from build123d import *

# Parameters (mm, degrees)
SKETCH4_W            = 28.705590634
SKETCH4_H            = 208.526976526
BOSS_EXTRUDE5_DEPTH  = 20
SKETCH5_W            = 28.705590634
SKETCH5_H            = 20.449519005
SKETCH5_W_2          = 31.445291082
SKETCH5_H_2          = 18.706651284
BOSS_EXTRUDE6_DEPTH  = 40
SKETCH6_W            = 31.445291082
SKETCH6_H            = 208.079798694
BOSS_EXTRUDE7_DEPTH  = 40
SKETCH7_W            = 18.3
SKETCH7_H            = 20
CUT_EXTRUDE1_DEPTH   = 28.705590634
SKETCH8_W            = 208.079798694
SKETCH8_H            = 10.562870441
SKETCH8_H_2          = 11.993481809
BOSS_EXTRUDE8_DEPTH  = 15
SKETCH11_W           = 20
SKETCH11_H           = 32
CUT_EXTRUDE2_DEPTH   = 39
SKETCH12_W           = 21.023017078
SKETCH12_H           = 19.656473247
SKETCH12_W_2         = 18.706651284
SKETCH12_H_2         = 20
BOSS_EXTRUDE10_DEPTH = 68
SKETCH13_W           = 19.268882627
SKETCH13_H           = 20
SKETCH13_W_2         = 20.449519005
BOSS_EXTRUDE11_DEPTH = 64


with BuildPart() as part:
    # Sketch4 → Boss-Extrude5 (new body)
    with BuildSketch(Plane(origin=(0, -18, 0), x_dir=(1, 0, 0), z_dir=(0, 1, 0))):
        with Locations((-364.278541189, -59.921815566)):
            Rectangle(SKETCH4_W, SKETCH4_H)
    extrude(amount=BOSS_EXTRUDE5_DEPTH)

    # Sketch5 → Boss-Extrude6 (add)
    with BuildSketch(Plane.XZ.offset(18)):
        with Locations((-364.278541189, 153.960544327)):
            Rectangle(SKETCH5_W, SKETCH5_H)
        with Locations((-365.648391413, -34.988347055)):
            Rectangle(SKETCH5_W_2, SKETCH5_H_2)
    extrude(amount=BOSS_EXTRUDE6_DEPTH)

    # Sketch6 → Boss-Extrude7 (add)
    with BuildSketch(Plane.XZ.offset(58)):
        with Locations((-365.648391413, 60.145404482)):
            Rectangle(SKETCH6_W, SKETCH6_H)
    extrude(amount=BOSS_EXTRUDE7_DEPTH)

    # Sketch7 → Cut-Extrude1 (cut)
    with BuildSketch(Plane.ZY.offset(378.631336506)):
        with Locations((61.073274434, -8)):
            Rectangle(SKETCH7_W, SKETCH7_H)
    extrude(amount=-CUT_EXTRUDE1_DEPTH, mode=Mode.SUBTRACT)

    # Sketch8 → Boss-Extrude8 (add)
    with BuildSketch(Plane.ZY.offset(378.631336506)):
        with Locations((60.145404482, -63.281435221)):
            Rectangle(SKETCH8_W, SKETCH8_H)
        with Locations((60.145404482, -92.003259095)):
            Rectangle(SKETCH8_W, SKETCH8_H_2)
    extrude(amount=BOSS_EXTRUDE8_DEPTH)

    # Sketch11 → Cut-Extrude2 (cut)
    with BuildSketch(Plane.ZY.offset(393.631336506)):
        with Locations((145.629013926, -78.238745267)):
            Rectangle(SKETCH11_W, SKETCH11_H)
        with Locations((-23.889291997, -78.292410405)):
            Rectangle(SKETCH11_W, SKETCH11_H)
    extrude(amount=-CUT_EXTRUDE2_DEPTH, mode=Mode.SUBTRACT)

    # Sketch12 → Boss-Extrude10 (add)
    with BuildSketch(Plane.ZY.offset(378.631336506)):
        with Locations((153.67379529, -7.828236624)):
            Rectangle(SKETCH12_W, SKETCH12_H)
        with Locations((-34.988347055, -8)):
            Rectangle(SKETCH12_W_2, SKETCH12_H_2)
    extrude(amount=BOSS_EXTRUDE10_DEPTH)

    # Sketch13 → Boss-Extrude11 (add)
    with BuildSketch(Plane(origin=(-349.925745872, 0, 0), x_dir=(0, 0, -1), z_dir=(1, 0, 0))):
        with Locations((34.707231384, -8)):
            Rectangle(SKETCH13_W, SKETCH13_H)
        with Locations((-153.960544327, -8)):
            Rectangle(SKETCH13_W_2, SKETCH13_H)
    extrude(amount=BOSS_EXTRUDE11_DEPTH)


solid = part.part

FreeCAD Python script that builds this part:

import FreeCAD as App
import Part
import Sketcher

V = App.Vector


def add_polygon(sketch, points):
    """Adds a closed chain of lines whose ends are joined by coincident constraints."""
    first, n = sketch.GeometryCount, len(points)
    for a, b in zip(points, points[1:] + points[:1]):
        sketch.addGeometry(Part.LineSegment(App.Vector(*a, 0), App.Vector(*b, 0)), False)
    for i in range(n):
        sketch.addConstraint(Sketcher.Constraint("Coincident", first + i, 2, first + (i + 1) % n, 1))

doc = App.newDocument("Part")
body = doc.addObject("PartDesign::Body", "Body")

sketch1 = body.newObject("Sketcher::SketchObject", "Sketch")
sketch1.AttachmentSupport = (doc.getObject("XZ_Plane"), [""])
sketch1.MapMode = "FlatFace"
sketch1.AttachmentOffset = App.Placement(V(0, 0, 18), App.Rotation())
add_polygon(sketch1, [(-379, -44), (-379, 164), (-350, 164), (-350, -44)])
sketch1.addConstraint(Sketcher.Constraint("Vertical", 0))
sketch1.addConstraint(Sketcher.Constraint("Horizontal", 1))
sketch1.addConstraint(Sketcher.Constraint("Vertical", 2))
sketch1.addConstraint(Sketcher.Constraint("Horizontal", 3))
sketch1.addConstraint(Sketcher.Constraint("DistanceX", 1, 1, 1, 2, 28.705591))
sketch1.addConstraint(Sketcher.Constraint("DistanceY", 0, 1, 0, 2, 208.526977))
sketch1.addConstraint(Sketcher.Constraint("DistanceX", 0, 2, -1, 1, 378.631337))
sketch1.addConstraint(Sketcher.Constraint("DistanceY", -1, 1, 0, 2, 164.185304))
pad1 = body.newObject("PartDesign::Pad", "Pad")
pad1.Profile = sketch1
pad1.Length = 20
pad1.Reversed = True

sketch2 = body.newObject("Sketcher::SketchObject", "Sketch001")
sketch2.AttachmentSupport = (doc.getObject("XZ_Plane"), [""])
sketch2.MapMode = "FlatFace"
sketch2.AttachmentOffset = App.Placement(V(0, 0, 18), App.Rotation())
add_polygon(sketch2, [(-379, 164), (-379, 144), (-350, 144), (-350, 164)])
add_polygon(sketch2, [(-381, -26), (-381, -44), (-350, -44), (-350, -26)])
sketch2.addConstraint(Sketcher.Constraint("Vertical", 0))
sketch2.addConstraint(Sketcher.Constraint("Horizontal", 1))
sketch2.addConstraint(Sketcher.Constraint("Vertical", 2))
sketch2.addConstraint(Sketcher.Constraint("Horizontal", 3))
sketch2.addConstraint(Sketcher.Constraint("Vertical", 4))
sketch2.addConstraint(Sketcher.Constraint("Horizontal", 5))
sketch2.addConstraint(Sketcher.Constraint("Vertical", 6))
sketch2.addConstraint(Sketcher.Constraint("Horizontal", 7))
sketch2.addConstraint(Sketcher.Constraint("Vertical", 2, 2, 5, 2))
sketch2.addConstraint(Sketcher.Constraint("DistanceX", 1, 1, 1, 2, 28.705591))
sketch2.addConstraint(Sketcher.Constraint("DistanceX", 5, 1, 5, 2, 31.445291))
sketch2.addConstraint(Sketcher.Constraint("DistanceY", 0, 2, 0, 1, 20.449519))
sketch2.addConstraint(Sketcher.Constraint("DistanceY", 4, 2, 4, 1, 18.706651))
sketch2.addConstraint(Sketcher.Constraint("DistanceY", 6, 2, -1, 1, 25.635021))
sketch2.addConstraint(Sketcher.Constraint("DistanceX", 0, 2, -1, 1, 378.631337))
sketch2.addConstraint(Sketcher.Constraint("DistanceY", -1, 1, 0, 2, 143.735785))
pad2 = body.newObject("PartDesign::Pad", "Pad001")
pad2.Profile = sketch2
pad2.Length = 40

sketch3 = body.newObject("Sketcher::SketchObject", "Sketch002")
sketch3.AttachmentSupport = (doc.getObject("XZ_Plane"), [""])
sketch3.MapMode = "FlatFace"
sketch3.AttachmentOffset = App.Placement(V(0, 0, 58), App.Rotation())
add_polygon(sketch3, [(-381, 164), (-381, -44), (-350, -44), (-350, 164)])
sketch3.addConstraint(Sketcher.Constraint("Vertical", 0))
sketch3.addConstraint(Sketcher.Constraint("Horizontal", 1))
sketch3.addConstraint(Sketcher.Constraint("Vertical", 2))
sketch3.addConstraint(Sketcher.Constraint("Horizontal", 3))
sketch3.addConstraint(Sketcher.Constraint("DistanceY", 0, 2, 0, 1, 208.079799))
sketch3.addConstraint(Sketcher.Constraint("DistanceX", 1, 1, 1, 2, 31.445291))
sketch3.addConstraint(Sketcher.Constraint("DistanceX", 0, 2, -1, 1, 381.371037))
sketch3.addConstraint(Sketcher.Constraint("DistanceY", 0, 2, -1, 1, 43.894495))
pad3 = body.newObject("PartDesign::Pad", "Pad002")
pad3.Profile = sketch3
pad3.Length = 40

sketch4 = body.newObject("Sketcher::SketchObject", "Sketch003")
sketch4.AttachmentSupport = (doc.getObject("YZ_Plane"), [""])
sketch4.MapMode = "FlatFace"
sketch4.AttachmentOffset = App.Placement(V(0, 0, -378.631337), App.Rotation())
add_polygon(sketch4, [(2, 52), (-18, 52), (-18, 70), (2, 70)])
sketch4.addConstraint(Sketcher.Constraint("Horizontal", 0))
sketch4.addConstraint(Sketcher.Constraint("Vertical", 1))
sketch4.addConstraint(Sketcher.Constraint("Horizontal", 2))
sketch4.addConstraint(Sketcher.Constraint("Vertical", 3))
sketch4.addConstraint(Sketcher.Constraint("DistanceX", 0, 2, 0, 1, 20.0))
sketch4.addConstraint(Sketcher.Constraint("DistanceY", 1, 1, 1, 2, 18.3))
sketch4.addConstraint(Sketcher.Constraint("DistanceX", 0, 2, -1, 1, 18.0))
sketch4.addConstraint(Sketcher.Constraint("DistanceY", -1, 1, 0, 2, 51.923274))
pocket1 = body.newObject("PartDesign::Pocket", "Pocket")
pocket1.Profile = sketch4
pocket1.Length = 28.705591
pocket1.Reversed = True

sketch5 = body.newObject("Sketcher::SketchObject", "Sketch004")
sketch5.AttachmentSupport = (doc.getObject("YZ_Plane"), [""])
sketch5.MapMode = "FlatFace"
sketch5.AttachmentOffset = App.Placement(V(0, 0, -378.631337), App.Rotation())
add_polygon(sketch5, [(-58, -44), (-69, -44), (-69, 164), (-58, 164)])
add_polygon(sketch5, [(-86, -44), (-98, -44), (-98, 164), (-86, 164)])
sketch5.addConstraint(Sketcher.Constraint("Horizontal", 0))
sketch5.addConstraint(Sketcher.Constraint("Vertical", 1))
sketch5.addConstraint(Sketcher.Constraint("Horizontal", 2))
sketch5.addConstraint(Sketcher.Constraint("Vertical", 3))
sketch5.addConstraint(Sketcher.Constraint("Horizontal", 4))
sketch5.addConstraint(Sketcher.Constraint("Vertical", 5))
sketch5.addConstraint(Sketcher.Constraint("Horizontal", 6))
sketch5.addConstraint(Sketcher.Constraint("Vertical", 7))
sketch5.addConstraint(Sketcher.Constraint("Horizontal", 3, 2, 4, 2))
sketch5.addConstraint(Sketcher.Constraint("Horizontal", 2, 2, 5, 2))
sketch5.addConstraint(Sketcher.Constraint("DistanceX", 2, 2, -1, 1, 58.0))
sketch5.addConstraint(Sketcher.Constraint("DistanceX", 4, 2, -1, 1, 98.0))
sketch5.addConstraint(Sketcher.Constraint("DistanceY", 1, 1, 1, 2, 208.079799))
sketch5.addConstraint(Sketcher.Constraint("DistanceX", 0, 2, 0, 1, 10.56287))
sketch5.addConstraint(Sketcher.Constraint("DistanceX", 4, 2, 4, 1, 11.993482))
sketch5.addConstraint(Sketcher.Constraint("DistanceY", 0, 2, -1, 1, 43.894495))
pad4 = body.newObject("PartDesign::Pad", "Pad003")
pad4.Profile = sketch5
pad4.Length = 15
pad4.Reversed = True

sketch6 = body.newObject("Sketcher::SketchObject", "Sketch005")
sketch6.AttachmentSupport = (doc.getObject("YZ_Plane"), [""])
sketch6.MapMode = "FlatFace"
sketch6.AttachmentOffset = App.Placement(V(0, 0, -393.631337), App.Rotation())
add_polygon(sketch6, [(-62, 136), (-94, 136), (-94, 156), (-62, 156)])
add_polygon(sketch6, [(-62, -34), (-94, -34), (-94, -14), (-62, -14)])
sketch6.addConstraint(Sketcher.Constraint("Horizontal", 0))
sketch6.addConstraint(Sketcher.Constraint("Vertical", 1))
sketch6.addConstraint(Sketcher.Constraint("Horizontal", 2))
sketch6.addConstraint(Sketcher.Constraint("Vertical", 3))
sketch6.addConstraint(Sketcher.Constraint("Horizontal", 4))
sketch6.addConstraint(Sketcher.Constraint("Vertical", 5))
sketch6.addConstraint(Sketcher.Constraint("Horizontal", 6))
sketch6.addConstraint(Sketcher.Constraint("Vertical", 7))
sketch6.addConstraint(Sketcher.Constraint("Equal", 2, 4))
sketch6.addConstraint(Sketcher.Constraint("Equal", 3, 5))
sketch6.addConstraint(Sketcher.Constraint("DistanceX", 0, 2, 0, 1, 32.0))
sketch6.addConstraint(Sketcher.Constraint("DistanceY", 1, 1, 1, 2, 20.0))
sketch6.addConstraint(Sketcher.Constraint("DistanceX", 4, 2, -1, 1, 94.29241))
sketch6.addConstraint(Sketcher.Constraint("DistanceY", 4, 2, -1, 1, 33.889292))
sketch6.addConstraint(Sketcher.Constraint("DistanceX", 0, 2, -1, 1, 94.238745))
sketch6.addConstraint(Sketcher.Constraint("DistanceY", -1, 1, 0, 2, 135.629014))
pocket2 = body.newObject("PartDesign::Pocket", "Pocket001")
pocket2.Profile = sketch6
pocket2.Length = 39
pocket2.Reversed = True

sketch7 = body.newObject("Sketcher::SketchObject", "Sketch006")
sketch7.AttachmentSupport = (doc.getObject("YZ_Plane"), [""])
sketch7.MapMode = "FlatFace"
sketch7.AttachmentOffset = App.Placement(V(0, 0, -378.631337), App.Rotation())
add_polygon(sketch7, [(2, 143), (-18, 143), (-18, 164), (2, 164)])
add_polygon(sketch7, [(2, -44), (-18, -44), (-18, -26), (2, -26)])
sketch7.addConstraint(Sketcher.Constraint("Horizontal", 0))
sketch7.addConstraint(Sketcher.Constraint("Vertical", 1))
sketch7.addConstraint(Sketcher.Constraint("Horizontal", 2))
sketch7.addConstraint(Sketcher.Constraint("Vertical", 3))
sketch7.addConstraint(Sketcher.Constraint("Horizontal", 4))
sketch7.addConstraint(Sketcher.Constraint("Vertical", 5))
sketch7.addConstraint(Sketcher.Constraint("Horizontal", 6))
sketch7.addConstraint(Sketcher.Constraint("Vertical", 7))
sketch7.addConstraint(Sketcher.Constraint("Vertical", 3, 2, 6, 2))
sketch7.addConstraint(Sketcher.Constraint("DistanceX", 4, 2, 4, 1, 20.0))
sketch7.addConstraint(Sketcher.Constraint("DistanceX", -1, 1, 2, 2, 2.0))
sketch7.addConstraint(Sketcher.Constraint("DistanceY", 5, 1, 5, 2, 18.706651))
sketch7.addConstraint(Sketcher.Constraint("DistanceX", 0, 2, 0, 1, 19.656473))
sketch7.addConstraint(Sketcher.Constraint("DistanceY", 1, 1, 1, 2, 21.023017))
sketch7.addConstraint(Sketcher.Constraint("DistanceY", 5, 2, -1, 1, 25.635021))
sketch7.addConstraint(Sketcher.Constraint("DistanceY", 4, 2, 0, 2, 187.503959))
pad5 = body.newObject("PartDesign::Pad", "Pad004")
pad5.Profile = sketch7
pad5.Length = 68
pad5.Reversed = True

sketch8 = body.newObject("Sketcher::SketchObject", "Sketch007")
sketch8.AttachmentSupport = (doc.getObject("YZ_Plane"), [""])
sketch8.MapMode = "FlatFace"
sketch8.AttachmentOffset = App.Placement(V(0, 0, -349.925746), App.Rotation())
add_polygon(sketch8, [(2, -25), (-18, -25), (-18, -44), (2, -44)])
add_polygon(sketch8, [(2, 164), (-18, 164), (-18, 144), (2, 144)])
sketch8.addConstraint(Sketcher.Constraint("Horizontal", 0))
sketch8.addConstraint(Sketcher.Constraint("Vertical", 1))
sketch8.addConstraint(Sketcher.Constraint("Horizontal", 2))
sketch8.addConstraint(Sketcher.Constraint("Vertical", 3))
sketch8.addConstraint(Sketcher.Constraint("Horizontal", 4))
sketch8.addConstraint(Sketcher.Constraint("Vertical", 5))
sketch8.addConstraint(Sketcher.Constraint("Horizontal", 6))
sketch8.addConstraint(Sketcher.Constraint("Vertical", 7))
sketch8.addConstraint(Sketcher.Constraint("Vertical", 1, 2, 4, 2))
sketch8.addConstraint(Sketcher.Constraint("Vertical", 3, 2, 6, 2))
sketch8.addConstraint(Sketcher.Constraint("DistanceX", 0, 2, 0, 1, 20.0))
sketch8.addConstraint(Sketcher.Constraint("DistanceX", 0, 2, -1, 1, 18.0))
sketch8.addConstraint(Sketcher.Constraint("DistanceY", 5, 2, 5, 1, 20.449519))
sketch8.addConstraint(Sketcher.Constraint("DistanceY", 1, 2, 1, 1, 19.268883))
sketch8.addConstraint(Sketcher.Constraint("DistanceY", 0, 2, -1, 1, 25.07279))
sketch8.addConstraint(Sketcher.Constraint("DistanceY", -1, 1, 4, 2, 164.185304))
pad6 = body.newObject("PartDesign::Pad", "Pad005")
pad6.Profile = sketch8
pad6.Length = 64

doc.recompute()
